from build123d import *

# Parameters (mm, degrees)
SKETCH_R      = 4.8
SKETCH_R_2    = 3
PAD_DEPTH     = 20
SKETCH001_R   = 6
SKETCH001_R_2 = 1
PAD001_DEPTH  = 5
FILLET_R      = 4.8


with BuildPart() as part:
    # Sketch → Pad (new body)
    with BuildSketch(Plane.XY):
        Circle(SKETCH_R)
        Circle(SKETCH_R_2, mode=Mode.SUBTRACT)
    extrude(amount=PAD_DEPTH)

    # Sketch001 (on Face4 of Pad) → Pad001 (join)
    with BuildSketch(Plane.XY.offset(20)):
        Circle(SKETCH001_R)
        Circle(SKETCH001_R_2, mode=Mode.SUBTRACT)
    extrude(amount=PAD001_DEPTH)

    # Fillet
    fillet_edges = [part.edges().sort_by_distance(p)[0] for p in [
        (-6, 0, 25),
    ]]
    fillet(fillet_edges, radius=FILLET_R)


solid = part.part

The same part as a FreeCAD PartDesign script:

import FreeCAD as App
import Part
import Sketcher

V = App.Vector


def edges_at(feature, points):
    """Names of the edges that pass closest to the given points."""
    edges = feature.Shape.Edges
    near = lambda p: min(range(len(edges)), key=lambda i: edges[i].distToShape(Part.Vertex(*p))[0])
    return sorted({f"Edge{near(p) + 1}" for p in points})

doc = App.newDocument("Part")
params = doc.addObject("Spreadsheet::Sheet", "Params")
for row, (alias, value) in enumerate([
    ("sketch1_diameter", "6 mm"),
    ("sketch1_diameter2", "9.6 mm"),
    ("pad1_length", "20 mm"),
    ("sketch2_diameter", "12 mm"),
    ("sketch2_diameter2", "2 mm"),
    ("pad2_length", "5 mm"),
    ("fillet_radius", "4.8 mm"),
], start=1):
    params.set(f"A{row}", alias)
    params.set(f"B{row}", "=" + value)
    params.setAlias(f"B{row}", alias)

body = doc.addObject("PartDesign::Body", "Body")

# Sketch on XY plane
sketch1 = body.newObject("Sketcher::SketchObject", "Sketch")
sketch1.AttachmentSupport = (doc.getObject("XY_Plane"), [""])
sketch1.MapMode = "FlatFace"
sketch1.addGeometry([
    Part.Circle(V(0, 0, 0), V(0, 0, 1), 4.8),
    Part.Circle(V(0, 0, 0), V(0, 0, 1), 3),
], False)
sketch1.addConstraint([
    Sketcher.Constraint("Coincident", 0, 3, -1, 1),
    Sketcher.Constraint("Coincident", 1, 3, -1, 1),
    Sketcher.Constraint("Diameter", 1, 6.0),
    Sketcher.Constraint("Diameter", 0, 9.6),
])
sketch1.setExpression("Constraints[2]", "Params.sketch1_diameter")
sketch1.setExpression("Constraints[3]", "Params.sketch1_diameter2")
pad1 = body.newObject("PartDesign::Pad", "Pad")
pad1.Profile = sketch1
pad1.setExpression("Length", "Params.pad1_length")

# Sketch on XY plane
sketch2 = body.newObject("Sketcher::SketchObject", "Sketch001")
sketch2.AttachmentSupport = (doc.getObject("XY_Plane"), [""])
sketch2.MapMode = "FlatFace"
sketch2.AttachmentOffset = App.Placement(V(0, 0, 20), App.Rotation())
sketch2.addGeometry([
    Part.Circle(V(0, 0, 0), V(0, 0, 1), 6),
    Part.Circle(V(0, 0, 0), V(0, 0, 1), 1),
], False)
sketch2.addConstraint([
    Sketcher.Constraint("Coincident", 0, 3, -1, 1),
    Sketcher.Constraint("Coincident", 1, 3, -1, 1),
    Sketcher.Constraint("Diameter", 0, 12.0),
    Sketcher.Constraint("Diameter", 1, 2.0),
])
sketch2.setExpression("Constraints[2]", "Params.sketch2_diameter")
sketch2.setExpression("Constraints[3]", "Params.sketch2_diameter2")
pad2 = body.newObject("PartDesign::Pad", "Pad001")
pad2.Profile = sketch2
pad2.setExpression("Length", "Params.pad2_length")
doc.recompute()

fillet = body.newObject("PartDesign::Fillet", "Fillet")
fillet.Base = (pad2, edges_at(pad2, [(-6, 0, 25)]))
fillet.setExpression("Radius", "Params.fillet_radius")

doc.recompute()
